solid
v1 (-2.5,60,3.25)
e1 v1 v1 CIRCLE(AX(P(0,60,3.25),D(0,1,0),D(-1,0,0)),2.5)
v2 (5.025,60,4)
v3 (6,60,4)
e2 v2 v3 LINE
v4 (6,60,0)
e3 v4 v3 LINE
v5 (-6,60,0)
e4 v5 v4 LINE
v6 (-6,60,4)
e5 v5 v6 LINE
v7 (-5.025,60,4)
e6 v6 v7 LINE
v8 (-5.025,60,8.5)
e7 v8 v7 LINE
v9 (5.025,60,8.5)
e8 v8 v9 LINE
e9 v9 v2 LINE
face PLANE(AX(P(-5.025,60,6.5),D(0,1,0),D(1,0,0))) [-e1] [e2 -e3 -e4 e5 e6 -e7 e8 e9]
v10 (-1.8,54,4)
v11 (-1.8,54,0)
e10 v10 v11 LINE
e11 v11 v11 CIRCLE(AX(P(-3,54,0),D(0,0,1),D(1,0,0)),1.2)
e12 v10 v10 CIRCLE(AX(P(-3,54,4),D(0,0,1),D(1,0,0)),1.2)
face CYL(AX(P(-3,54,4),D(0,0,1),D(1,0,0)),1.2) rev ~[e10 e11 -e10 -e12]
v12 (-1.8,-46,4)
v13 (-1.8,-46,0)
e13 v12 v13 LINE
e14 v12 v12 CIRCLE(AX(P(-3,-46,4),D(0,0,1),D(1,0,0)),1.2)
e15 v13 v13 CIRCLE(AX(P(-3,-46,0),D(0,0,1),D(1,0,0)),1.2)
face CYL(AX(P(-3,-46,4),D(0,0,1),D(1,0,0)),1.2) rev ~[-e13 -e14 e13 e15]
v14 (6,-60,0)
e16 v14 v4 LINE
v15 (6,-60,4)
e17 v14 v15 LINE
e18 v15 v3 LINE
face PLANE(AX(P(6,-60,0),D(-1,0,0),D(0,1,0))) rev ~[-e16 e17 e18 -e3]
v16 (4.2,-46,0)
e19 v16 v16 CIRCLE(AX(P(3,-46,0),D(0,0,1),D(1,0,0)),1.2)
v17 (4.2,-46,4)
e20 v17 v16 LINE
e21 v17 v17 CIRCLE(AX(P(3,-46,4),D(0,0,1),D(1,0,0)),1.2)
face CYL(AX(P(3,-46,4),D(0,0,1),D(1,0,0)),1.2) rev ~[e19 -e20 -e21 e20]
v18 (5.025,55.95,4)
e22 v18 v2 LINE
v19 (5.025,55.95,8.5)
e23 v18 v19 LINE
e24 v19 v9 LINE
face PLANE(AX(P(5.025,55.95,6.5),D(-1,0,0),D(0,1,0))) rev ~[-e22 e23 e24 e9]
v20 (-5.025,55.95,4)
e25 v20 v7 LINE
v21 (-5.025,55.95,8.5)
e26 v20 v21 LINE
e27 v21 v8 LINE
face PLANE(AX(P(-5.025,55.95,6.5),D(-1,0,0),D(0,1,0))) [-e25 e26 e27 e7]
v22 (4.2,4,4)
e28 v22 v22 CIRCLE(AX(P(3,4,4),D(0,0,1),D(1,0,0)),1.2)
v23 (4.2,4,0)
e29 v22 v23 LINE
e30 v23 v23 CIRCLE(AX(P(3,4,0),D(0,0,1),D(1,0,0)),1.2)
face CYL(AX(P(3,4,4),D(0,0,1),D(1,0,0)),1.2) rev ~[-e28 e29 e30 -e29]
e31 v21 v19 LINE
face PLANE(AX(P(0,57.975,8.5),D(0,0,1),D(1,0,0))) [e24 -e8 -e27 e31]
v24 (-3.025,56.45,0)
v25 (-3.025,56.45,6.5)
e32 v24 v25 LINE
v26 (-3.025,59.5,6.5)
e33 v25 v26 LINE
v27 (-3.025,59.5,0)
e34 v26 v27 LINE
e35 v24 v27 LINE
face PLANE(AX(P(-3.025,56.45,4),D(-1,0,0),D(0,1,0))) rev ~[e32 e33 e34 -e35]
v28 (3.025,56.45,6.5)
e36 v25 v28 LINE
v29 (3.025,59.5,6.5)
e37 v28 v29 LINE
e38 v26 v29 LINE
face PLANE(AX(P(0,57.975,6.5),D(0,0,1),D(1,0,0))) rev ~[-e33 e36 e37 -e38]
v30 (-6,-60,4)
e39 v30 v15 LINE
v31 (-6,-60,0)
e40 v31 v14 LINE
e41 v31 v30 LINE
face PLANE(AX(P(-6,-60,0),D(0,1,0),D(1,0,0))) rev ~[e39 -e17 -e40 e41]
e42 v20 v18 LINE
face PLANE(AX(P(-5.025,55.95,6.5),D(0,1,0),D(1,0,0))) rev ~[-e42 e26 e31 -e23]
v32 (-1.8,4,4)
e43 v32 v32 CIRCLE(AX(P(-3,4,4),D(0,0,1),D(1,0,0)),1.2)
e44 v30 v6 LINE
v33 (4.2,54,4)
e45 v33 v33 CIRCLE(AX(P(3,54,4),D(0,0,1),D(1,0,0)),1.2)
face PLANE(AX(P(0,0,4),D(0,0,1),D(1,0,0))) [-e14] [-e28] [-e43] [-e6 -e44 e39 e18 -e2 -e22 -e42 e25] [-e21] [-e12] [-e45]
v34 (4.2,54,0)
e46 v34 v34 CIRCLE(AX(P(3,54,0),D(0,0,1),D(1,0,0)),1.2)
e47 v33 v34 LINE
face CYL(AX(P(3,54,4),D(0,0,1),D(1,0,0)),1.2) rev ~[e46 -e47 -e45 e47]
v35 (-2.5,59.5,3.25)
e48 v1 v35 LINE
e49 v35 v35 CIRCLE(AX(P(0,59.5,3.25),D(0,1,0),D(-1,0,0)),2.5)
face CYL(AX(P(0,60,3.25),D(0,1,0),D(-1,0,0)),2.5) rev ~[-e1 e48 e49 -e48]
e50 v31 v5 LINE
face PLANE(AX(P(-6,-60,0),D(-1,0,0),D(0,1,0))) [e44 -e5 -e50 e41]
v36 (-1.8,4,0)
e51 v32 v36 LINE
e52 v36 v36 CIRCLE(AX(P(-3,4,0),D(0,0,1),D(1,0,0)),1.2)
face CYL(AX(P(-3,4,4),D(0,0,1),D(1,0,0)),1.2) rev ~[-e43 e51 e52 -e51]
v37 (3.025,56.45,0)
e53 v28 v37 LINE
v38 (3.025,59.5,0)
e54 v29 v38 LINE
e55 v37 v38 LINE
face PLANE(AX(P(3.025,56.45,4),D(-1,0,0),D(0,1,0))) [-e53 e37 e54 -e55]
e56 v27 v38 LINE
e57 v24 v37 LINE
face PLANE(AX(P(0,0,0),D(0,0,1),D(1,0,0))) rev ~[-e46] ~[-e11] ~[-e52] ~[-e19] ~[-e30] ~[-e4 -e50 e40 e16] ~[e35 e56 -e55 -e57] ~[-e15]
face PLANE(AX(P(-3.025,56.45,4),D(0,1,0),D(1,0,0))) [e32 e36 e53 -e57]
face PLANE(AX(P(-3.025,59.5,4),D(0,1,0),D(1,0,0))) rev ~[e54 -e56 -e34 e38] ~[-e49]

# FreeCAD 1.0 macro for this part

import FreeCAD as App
import Part
import Sketcher
Q = App.Units.Quantity


def add_polygon(sketch, points):
    """Adds a closed chain of lines whose ends are joined by coincident constraints."""
    first, n = sketch.GeometryCount, len(points)
    for a, b in zip(points, points[1:] + points[:1]):
        sketch.addGeometry(Part.LineSegment(App.Vector(*a, 0), App.Vector(*b, 0)), False)
    for i in range(n):
        sketch.addConstraint(Sketcher.Constraint("Coincident", first + i, 2, first + (i + 1) % n, 1))

doc = App.newDocument("Part")
body = doc.addObject("PartDesign::Body", "Body")

# Sketch on XY plane
sketch1 = doc.addObject("Sketcher::SketchObject", "Sketch")
body.addObject(sketch1)
sketch1.AttachmentSupport = (doc.XY_Plane, [""])
sketch1.MapMode = "FlatFace"
add_polygon(sketch1, [(-6, 60), (-6, -60), (6, -60), (6, 60)])  # lines 0-3
add_polygon(sketch1, [(3, 56.5), (-3, 56.5), (-3, 59.5), (3, 59.5)])  # lines 4-7
sketch1.addConstraint([
    Sketcher.Constraint("Vertical", 0),
    Sketcher.Constraint("Horizontal", 1),
    Sketcher.Constraint("Vertical", 2),
    Sketcher.Constraint("Horizontal", 3),
    Sketcher.Constraint("Horizontal", 4),
    Sketcher.Constraint("Vertical", 5),
    Sketcher.Constraint("Horizontal", 6),
    Sketcher.Constraint("Vertical", 7),
    Sketcher.Constraint("Symmetric", 0, 2, 2, 2, -1, 1),
    Sketcher.Constraint("DistanceX", 1, 1, 1, 2, Q("12 mm")),
    Sketcher.Constraint("DistanceY", 0, 2, 0, 1, Q("120 mm")),
    Sketcher.Constraint("DistanceX", 4, 2, 4, 1, Q("6.05 mm")),
    Sketcher.Constraint("DistanceY", 5, 1, 5, 2, Q("3.05 mm")),
    Sketcher.Constraint("DistanceY", -1, 1, 5, 2, Q("59.5 mm")),
    Sketcher.Constraint("DistanceX", 4, 2, -1, 1, Q("3.025 mm")),
])
pad1 = doc.addObject("PartDesign::Pad", "Pad")
body.addObject(pad1)
pad1.Profile = sketch1
pad1.Length = 4

# Sketch on XY plane
sketch2 = doc.addObject("Sketcher::SketchObject", "Sketch001")
body.addObject(sketch2)
sketch2.AttachmentSupport = (doc.XY_Plane, [""])
sketch2.MapMode = "FlatFace"
sketch2.AttachmentOffset = App.Placement(App.Vector(0, 0, 4), App.Rotation())
sketch2.addGeometry([
    Part.Circle(App.Vector(3, 54, 0), App.Vector(0, 0, 1), 1.2),  # 0
    Part.Circle(App.Vector(3, 4, 0), App.Vector(0, 0, 1), 1.2),  # 1
    Part.Circle(App.Vector(3, -46, 0), App.Vector(0, 0, 1), 1.2),  # 2
    Part.Circle(App.Vector(-3, 54, 0), App.Vector(0, 0, 1), 1.2),  # 3
    Part.Circle(App.Vector(-3, 4, 0), App.Vector(0, 0, 1), 1.2),  # 4
    Part.Circle(App.Vector(-3, -46, 0), App.Vector(0, 0, 1), 1.2),  # 5
], False)
sketch2.addConstraint([
    Sketcher.Constraint("Equal", 0, 1),
    Sketcher.Constraint("Equal", 1, 2),
    Sketcher.Constraint("Equal", 2, 3),
    Sketcher.Constraint("Equal", 3, 4),
    Sketcher.Constraint("Equal", 4, 5),
    Sketcher.Constraint("Symmetric", 0, 3, 3, 3, -2),
    Sketcher.Constraint("Symmetric", 1, 3, 4, 3, -2),
    Sketcher.Constraint("Symmetric", 2, 3, 5, 3, -2),
    Sketcher.Constraint("Vertical", 0, 3, 1, 3),
    Sketcher.Constraint("Vertical", 1, 3, 2, 3),
    Sketcher.Constraint("Diameter", 0, Q("2.4 mm")),
    Sketcher.Constraint("DistanceX", -1, 1, 0, 3, Q("3 mm")),
    Sketcher.Constraint("DistanceY", -1, 1, 0, 3, Q("54 mm")),
    Sketcher.Constraint("DistanceY", -1, 1, 1, 3, Q("4 mm")),
    Sketcher.Constraint("DistanceY", 2, 3, -1, 1, Q("46 mm")),
])
pocket1 = doc.addObject("PartDesign::Pocket", "Pocket")
body.addObject(pocket1)
pocket1.Profile = sketch2
pocket1.Length = 25

# Sketch on XY plane
sketch3 = doc.addObject("Sketcher::SketchObject", "Sketch002")
body.addObject(sketch3)
sketch3.AttachmentSupport = (doc.XY_Plane, [""])
sketch3.MapMode = "FlatFace"
sketch3.AttachmentOffset = App.Placement(App.Vector(0, 0, 4), App.Rotation())
add_polygon(sketch3, [(-5, 60), (-5, 56), (5, 56), (5, 60)])  # lines 0-3
add_polygon(sketch3, [(3, 56.5), (-3, 56.5), (-3, 59.5), (3, 59.5)])  # lines 4-7
sketch3.addConstraint([
    Sketcher.Constraint("Vertical", 0),
    Sketcher.Constraint("Horizontal", 1),
    Sketcher.Constraint("Vertical", 2),
    Sketcher.Constraint("Horizontal", 3),
    Sketcher.Constraint("Horizontal", 4),
    Sketcher.Constraint("Vertical", 5),
    Sketcher.Constraint("Horizontal", 6),
    Sketcher.Constraint("Vertical", 7),
    Sketcher.Constraint("DistanceY", -1, 1, 2, 2, Q("60 mm")),
    Sketcher.Constraint("DistanceX", 0, 2, 4, 2, Q("2 mm")),
    Sketcher.Constraint("DistanceX", 6, 2, 2, 2, Q("2 mm")),
    Sketcher.Constraint("DistanceX", 1, 1, 1, 2, Q("10.05 mm")),
    Sketcher.Constraint("DistanceY", 0, 2, 0, 1, Q("4.05 mm")),
    Sketcher.Constraint("DistanceY", 5, 1, 5, 2, Q("3.05 mm")),
    Sketcher.Constraint("DistanceY", -1, 1, 5, 2, Q("59.5 mm")),
    Sketcher.Constraint("DistanceX", 0, 2, -1, 1, Q("5.025 mm")),
])
pad2 = doc.addObject("PartDesign::Pad", "Pad001")
body.addObject(pad2)
pad2.Profile = sketch3
pad2.Length = 2.5

# Sketch on XY plane
sketch4 = doc.addObject("Sketcher::SketchObject", "Sketch003")
body.addObject(sketch4)
sketch4.AttachmentSupport = (doc.XY_Plane, [""])
sketch4.MapMode = "FlatFace"
sketch4.AttachmentOffset = App.Placement(App.Vector(0, 0, 6.5), App.Rotation())
add_polygon(sketch4, [(-5, 60), (-5, 56), (5, 56), (5, 60)])  # lines 0-3
sketch4.addConstraint([
    Sketcher.Constraint("Vertical", 0),
    Sketcher.Constraint("Horizontal", 1),
    Sketcher.Constraint("Vertical", 2),
    Sketcher.Constraint("Horizontal", 3),
    Sketcher.Constraint("DistanceY", -1, 1, 2, 2, Q("60 mm")),
    Sketcher.Constraint("DistanceX", 1, 1, 1, 2, Q("10.05 mm")),
    Sketcher.Constraint("DistanceY", 0, 2, 0, 1, Q("4.05 mm")),
    Sketcher.Constraint("DistanceX", 0, 2, -1, 1, Q("5.025 mm")),
])
pad3 = doc.addObject("PartDesign::Pad", "Pad002")
body.addObject(pad3)
pad3.Profile = sketch4
pad3.Length = 2

# Sketch on XZ plane
sketch5 = doc.addObject("Sketcher::SketchObject", "Sketch004")
body.addObject(sketch5)
sketch5.AttachmentSupport = (doc.XZ_Plane, [""])
sketch5.MapMode = "FlatFace"
sketch5.AttachmentOffset = App.Placement(App.Vector(0, 0, -60), App.Rotation())
sketch5.addGeometry(Part.Circle(App.Vector(0, 3.2, 0), App.Vector(0, 0, 1), 2.5), False)
sketch5.addConstraint([
    Sketcher.Constraint("PointOnObject", 0, 3, -2),
    Sketcher.Constraint("Diameter", 0, Q("5 mm")),
    Sketcher.Constraint("DistanceY", -1, 1, 0, 3, Q("3.25 mm")),
])
pocket2 = doc.addObject("PartDesign::Pocket", "Pocket001")
body.addObject(pocket2)
pocket2.Profile = sketch5
pocket2.Length = 0.5
pocket2.Reversed = True

doc.recompute()
